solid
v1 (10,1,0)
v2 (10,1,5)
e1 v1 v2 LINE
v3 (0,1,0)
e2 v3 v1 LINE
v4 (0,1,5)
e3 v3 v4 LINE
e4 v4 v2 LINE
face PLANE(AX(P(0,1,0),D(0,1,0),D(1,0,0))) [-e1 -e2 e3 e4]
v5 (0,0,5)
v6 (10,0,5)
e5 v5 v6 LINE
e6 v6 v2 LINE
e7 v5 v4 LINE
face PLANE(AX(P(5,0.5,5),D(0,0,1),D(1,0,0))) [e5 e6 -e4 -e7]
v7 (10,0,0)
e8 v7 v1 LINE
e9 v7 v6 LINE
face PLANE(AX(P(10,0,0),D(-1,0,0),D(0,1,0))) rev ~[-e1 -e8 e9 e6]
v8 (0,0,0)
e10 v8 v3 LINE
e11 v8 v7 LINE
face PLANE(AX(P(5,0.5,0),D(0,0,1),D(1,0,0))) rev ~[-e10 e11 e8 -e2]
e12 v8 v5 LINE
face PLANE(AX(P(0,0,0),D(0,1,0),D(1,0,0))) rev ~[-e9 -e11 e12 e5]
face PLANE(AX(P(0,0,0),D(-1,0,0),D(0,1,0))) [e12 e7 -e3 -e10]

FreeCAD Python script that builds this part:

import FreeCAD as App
import Part
import Sketcher

V = App.Vector
Q = App.Units.Quantity


def add_polygon(sketch, points):
    """Adds a closed chain of lines whose ends are joined by coincident constraints."""
    first, n = sketch.GeometryCount, len(points)
    for a, b in zip(points, points[1:] + points[:1]):
        sketch.addGeometry(Part.LineSegment(App.Vector(*a, 0), App.Vector(*b, 0)), False)
    for i in range(n):
        sketch.addConstraint(Sketcher.Constraint("Coincident", first + i, 2, first + (i + 1) % n, 1))

doc = App.newDocument("Part")
body = doc.addObject("PartDesign::Body", "Body")

# Sketch on XY plane
sketch1 = body.newObject("Sketcher::SketchObject", "Sketch")
sketch1.AttachmentSupport = (doc.getObject("XY_Plane"), [""])
sketch1.MapMode = "FlatFace"
add_polygon(sketch1, [(0, 1), (0, 0), (10, 0), (10, 1)])  # lines 0-3
sketch1.addConstraint(Sketcher.Constraint("Vertical", 0))
sketch1.addConstraint(Sketcher.Constraint("Horizontal", 1))
sketch1.addConstraint(Sketcher.Constraint("Vertical", 2))
sketch1.addConstraint(Sketcher.Constraint("Horizontal", 3))
sketch1.addConstraint(Sketcher.Constraint("Coincident", 0, 2, -1, 1))
sketch1.addConstraint(Sketcher.Constraint("DistanceX", 1, 1, 1, 2, Q("10 mm")))
sketch1.addConstraint(Sketcher.Constraint("DistanceY", 0, 2, 0, 1, Q("1 mm")))
pad1 = body.newObject("PartDesign::Pad", "Pad")
pad1.Profile = sketch1
pad1.Length = 5

doc.recompute()
